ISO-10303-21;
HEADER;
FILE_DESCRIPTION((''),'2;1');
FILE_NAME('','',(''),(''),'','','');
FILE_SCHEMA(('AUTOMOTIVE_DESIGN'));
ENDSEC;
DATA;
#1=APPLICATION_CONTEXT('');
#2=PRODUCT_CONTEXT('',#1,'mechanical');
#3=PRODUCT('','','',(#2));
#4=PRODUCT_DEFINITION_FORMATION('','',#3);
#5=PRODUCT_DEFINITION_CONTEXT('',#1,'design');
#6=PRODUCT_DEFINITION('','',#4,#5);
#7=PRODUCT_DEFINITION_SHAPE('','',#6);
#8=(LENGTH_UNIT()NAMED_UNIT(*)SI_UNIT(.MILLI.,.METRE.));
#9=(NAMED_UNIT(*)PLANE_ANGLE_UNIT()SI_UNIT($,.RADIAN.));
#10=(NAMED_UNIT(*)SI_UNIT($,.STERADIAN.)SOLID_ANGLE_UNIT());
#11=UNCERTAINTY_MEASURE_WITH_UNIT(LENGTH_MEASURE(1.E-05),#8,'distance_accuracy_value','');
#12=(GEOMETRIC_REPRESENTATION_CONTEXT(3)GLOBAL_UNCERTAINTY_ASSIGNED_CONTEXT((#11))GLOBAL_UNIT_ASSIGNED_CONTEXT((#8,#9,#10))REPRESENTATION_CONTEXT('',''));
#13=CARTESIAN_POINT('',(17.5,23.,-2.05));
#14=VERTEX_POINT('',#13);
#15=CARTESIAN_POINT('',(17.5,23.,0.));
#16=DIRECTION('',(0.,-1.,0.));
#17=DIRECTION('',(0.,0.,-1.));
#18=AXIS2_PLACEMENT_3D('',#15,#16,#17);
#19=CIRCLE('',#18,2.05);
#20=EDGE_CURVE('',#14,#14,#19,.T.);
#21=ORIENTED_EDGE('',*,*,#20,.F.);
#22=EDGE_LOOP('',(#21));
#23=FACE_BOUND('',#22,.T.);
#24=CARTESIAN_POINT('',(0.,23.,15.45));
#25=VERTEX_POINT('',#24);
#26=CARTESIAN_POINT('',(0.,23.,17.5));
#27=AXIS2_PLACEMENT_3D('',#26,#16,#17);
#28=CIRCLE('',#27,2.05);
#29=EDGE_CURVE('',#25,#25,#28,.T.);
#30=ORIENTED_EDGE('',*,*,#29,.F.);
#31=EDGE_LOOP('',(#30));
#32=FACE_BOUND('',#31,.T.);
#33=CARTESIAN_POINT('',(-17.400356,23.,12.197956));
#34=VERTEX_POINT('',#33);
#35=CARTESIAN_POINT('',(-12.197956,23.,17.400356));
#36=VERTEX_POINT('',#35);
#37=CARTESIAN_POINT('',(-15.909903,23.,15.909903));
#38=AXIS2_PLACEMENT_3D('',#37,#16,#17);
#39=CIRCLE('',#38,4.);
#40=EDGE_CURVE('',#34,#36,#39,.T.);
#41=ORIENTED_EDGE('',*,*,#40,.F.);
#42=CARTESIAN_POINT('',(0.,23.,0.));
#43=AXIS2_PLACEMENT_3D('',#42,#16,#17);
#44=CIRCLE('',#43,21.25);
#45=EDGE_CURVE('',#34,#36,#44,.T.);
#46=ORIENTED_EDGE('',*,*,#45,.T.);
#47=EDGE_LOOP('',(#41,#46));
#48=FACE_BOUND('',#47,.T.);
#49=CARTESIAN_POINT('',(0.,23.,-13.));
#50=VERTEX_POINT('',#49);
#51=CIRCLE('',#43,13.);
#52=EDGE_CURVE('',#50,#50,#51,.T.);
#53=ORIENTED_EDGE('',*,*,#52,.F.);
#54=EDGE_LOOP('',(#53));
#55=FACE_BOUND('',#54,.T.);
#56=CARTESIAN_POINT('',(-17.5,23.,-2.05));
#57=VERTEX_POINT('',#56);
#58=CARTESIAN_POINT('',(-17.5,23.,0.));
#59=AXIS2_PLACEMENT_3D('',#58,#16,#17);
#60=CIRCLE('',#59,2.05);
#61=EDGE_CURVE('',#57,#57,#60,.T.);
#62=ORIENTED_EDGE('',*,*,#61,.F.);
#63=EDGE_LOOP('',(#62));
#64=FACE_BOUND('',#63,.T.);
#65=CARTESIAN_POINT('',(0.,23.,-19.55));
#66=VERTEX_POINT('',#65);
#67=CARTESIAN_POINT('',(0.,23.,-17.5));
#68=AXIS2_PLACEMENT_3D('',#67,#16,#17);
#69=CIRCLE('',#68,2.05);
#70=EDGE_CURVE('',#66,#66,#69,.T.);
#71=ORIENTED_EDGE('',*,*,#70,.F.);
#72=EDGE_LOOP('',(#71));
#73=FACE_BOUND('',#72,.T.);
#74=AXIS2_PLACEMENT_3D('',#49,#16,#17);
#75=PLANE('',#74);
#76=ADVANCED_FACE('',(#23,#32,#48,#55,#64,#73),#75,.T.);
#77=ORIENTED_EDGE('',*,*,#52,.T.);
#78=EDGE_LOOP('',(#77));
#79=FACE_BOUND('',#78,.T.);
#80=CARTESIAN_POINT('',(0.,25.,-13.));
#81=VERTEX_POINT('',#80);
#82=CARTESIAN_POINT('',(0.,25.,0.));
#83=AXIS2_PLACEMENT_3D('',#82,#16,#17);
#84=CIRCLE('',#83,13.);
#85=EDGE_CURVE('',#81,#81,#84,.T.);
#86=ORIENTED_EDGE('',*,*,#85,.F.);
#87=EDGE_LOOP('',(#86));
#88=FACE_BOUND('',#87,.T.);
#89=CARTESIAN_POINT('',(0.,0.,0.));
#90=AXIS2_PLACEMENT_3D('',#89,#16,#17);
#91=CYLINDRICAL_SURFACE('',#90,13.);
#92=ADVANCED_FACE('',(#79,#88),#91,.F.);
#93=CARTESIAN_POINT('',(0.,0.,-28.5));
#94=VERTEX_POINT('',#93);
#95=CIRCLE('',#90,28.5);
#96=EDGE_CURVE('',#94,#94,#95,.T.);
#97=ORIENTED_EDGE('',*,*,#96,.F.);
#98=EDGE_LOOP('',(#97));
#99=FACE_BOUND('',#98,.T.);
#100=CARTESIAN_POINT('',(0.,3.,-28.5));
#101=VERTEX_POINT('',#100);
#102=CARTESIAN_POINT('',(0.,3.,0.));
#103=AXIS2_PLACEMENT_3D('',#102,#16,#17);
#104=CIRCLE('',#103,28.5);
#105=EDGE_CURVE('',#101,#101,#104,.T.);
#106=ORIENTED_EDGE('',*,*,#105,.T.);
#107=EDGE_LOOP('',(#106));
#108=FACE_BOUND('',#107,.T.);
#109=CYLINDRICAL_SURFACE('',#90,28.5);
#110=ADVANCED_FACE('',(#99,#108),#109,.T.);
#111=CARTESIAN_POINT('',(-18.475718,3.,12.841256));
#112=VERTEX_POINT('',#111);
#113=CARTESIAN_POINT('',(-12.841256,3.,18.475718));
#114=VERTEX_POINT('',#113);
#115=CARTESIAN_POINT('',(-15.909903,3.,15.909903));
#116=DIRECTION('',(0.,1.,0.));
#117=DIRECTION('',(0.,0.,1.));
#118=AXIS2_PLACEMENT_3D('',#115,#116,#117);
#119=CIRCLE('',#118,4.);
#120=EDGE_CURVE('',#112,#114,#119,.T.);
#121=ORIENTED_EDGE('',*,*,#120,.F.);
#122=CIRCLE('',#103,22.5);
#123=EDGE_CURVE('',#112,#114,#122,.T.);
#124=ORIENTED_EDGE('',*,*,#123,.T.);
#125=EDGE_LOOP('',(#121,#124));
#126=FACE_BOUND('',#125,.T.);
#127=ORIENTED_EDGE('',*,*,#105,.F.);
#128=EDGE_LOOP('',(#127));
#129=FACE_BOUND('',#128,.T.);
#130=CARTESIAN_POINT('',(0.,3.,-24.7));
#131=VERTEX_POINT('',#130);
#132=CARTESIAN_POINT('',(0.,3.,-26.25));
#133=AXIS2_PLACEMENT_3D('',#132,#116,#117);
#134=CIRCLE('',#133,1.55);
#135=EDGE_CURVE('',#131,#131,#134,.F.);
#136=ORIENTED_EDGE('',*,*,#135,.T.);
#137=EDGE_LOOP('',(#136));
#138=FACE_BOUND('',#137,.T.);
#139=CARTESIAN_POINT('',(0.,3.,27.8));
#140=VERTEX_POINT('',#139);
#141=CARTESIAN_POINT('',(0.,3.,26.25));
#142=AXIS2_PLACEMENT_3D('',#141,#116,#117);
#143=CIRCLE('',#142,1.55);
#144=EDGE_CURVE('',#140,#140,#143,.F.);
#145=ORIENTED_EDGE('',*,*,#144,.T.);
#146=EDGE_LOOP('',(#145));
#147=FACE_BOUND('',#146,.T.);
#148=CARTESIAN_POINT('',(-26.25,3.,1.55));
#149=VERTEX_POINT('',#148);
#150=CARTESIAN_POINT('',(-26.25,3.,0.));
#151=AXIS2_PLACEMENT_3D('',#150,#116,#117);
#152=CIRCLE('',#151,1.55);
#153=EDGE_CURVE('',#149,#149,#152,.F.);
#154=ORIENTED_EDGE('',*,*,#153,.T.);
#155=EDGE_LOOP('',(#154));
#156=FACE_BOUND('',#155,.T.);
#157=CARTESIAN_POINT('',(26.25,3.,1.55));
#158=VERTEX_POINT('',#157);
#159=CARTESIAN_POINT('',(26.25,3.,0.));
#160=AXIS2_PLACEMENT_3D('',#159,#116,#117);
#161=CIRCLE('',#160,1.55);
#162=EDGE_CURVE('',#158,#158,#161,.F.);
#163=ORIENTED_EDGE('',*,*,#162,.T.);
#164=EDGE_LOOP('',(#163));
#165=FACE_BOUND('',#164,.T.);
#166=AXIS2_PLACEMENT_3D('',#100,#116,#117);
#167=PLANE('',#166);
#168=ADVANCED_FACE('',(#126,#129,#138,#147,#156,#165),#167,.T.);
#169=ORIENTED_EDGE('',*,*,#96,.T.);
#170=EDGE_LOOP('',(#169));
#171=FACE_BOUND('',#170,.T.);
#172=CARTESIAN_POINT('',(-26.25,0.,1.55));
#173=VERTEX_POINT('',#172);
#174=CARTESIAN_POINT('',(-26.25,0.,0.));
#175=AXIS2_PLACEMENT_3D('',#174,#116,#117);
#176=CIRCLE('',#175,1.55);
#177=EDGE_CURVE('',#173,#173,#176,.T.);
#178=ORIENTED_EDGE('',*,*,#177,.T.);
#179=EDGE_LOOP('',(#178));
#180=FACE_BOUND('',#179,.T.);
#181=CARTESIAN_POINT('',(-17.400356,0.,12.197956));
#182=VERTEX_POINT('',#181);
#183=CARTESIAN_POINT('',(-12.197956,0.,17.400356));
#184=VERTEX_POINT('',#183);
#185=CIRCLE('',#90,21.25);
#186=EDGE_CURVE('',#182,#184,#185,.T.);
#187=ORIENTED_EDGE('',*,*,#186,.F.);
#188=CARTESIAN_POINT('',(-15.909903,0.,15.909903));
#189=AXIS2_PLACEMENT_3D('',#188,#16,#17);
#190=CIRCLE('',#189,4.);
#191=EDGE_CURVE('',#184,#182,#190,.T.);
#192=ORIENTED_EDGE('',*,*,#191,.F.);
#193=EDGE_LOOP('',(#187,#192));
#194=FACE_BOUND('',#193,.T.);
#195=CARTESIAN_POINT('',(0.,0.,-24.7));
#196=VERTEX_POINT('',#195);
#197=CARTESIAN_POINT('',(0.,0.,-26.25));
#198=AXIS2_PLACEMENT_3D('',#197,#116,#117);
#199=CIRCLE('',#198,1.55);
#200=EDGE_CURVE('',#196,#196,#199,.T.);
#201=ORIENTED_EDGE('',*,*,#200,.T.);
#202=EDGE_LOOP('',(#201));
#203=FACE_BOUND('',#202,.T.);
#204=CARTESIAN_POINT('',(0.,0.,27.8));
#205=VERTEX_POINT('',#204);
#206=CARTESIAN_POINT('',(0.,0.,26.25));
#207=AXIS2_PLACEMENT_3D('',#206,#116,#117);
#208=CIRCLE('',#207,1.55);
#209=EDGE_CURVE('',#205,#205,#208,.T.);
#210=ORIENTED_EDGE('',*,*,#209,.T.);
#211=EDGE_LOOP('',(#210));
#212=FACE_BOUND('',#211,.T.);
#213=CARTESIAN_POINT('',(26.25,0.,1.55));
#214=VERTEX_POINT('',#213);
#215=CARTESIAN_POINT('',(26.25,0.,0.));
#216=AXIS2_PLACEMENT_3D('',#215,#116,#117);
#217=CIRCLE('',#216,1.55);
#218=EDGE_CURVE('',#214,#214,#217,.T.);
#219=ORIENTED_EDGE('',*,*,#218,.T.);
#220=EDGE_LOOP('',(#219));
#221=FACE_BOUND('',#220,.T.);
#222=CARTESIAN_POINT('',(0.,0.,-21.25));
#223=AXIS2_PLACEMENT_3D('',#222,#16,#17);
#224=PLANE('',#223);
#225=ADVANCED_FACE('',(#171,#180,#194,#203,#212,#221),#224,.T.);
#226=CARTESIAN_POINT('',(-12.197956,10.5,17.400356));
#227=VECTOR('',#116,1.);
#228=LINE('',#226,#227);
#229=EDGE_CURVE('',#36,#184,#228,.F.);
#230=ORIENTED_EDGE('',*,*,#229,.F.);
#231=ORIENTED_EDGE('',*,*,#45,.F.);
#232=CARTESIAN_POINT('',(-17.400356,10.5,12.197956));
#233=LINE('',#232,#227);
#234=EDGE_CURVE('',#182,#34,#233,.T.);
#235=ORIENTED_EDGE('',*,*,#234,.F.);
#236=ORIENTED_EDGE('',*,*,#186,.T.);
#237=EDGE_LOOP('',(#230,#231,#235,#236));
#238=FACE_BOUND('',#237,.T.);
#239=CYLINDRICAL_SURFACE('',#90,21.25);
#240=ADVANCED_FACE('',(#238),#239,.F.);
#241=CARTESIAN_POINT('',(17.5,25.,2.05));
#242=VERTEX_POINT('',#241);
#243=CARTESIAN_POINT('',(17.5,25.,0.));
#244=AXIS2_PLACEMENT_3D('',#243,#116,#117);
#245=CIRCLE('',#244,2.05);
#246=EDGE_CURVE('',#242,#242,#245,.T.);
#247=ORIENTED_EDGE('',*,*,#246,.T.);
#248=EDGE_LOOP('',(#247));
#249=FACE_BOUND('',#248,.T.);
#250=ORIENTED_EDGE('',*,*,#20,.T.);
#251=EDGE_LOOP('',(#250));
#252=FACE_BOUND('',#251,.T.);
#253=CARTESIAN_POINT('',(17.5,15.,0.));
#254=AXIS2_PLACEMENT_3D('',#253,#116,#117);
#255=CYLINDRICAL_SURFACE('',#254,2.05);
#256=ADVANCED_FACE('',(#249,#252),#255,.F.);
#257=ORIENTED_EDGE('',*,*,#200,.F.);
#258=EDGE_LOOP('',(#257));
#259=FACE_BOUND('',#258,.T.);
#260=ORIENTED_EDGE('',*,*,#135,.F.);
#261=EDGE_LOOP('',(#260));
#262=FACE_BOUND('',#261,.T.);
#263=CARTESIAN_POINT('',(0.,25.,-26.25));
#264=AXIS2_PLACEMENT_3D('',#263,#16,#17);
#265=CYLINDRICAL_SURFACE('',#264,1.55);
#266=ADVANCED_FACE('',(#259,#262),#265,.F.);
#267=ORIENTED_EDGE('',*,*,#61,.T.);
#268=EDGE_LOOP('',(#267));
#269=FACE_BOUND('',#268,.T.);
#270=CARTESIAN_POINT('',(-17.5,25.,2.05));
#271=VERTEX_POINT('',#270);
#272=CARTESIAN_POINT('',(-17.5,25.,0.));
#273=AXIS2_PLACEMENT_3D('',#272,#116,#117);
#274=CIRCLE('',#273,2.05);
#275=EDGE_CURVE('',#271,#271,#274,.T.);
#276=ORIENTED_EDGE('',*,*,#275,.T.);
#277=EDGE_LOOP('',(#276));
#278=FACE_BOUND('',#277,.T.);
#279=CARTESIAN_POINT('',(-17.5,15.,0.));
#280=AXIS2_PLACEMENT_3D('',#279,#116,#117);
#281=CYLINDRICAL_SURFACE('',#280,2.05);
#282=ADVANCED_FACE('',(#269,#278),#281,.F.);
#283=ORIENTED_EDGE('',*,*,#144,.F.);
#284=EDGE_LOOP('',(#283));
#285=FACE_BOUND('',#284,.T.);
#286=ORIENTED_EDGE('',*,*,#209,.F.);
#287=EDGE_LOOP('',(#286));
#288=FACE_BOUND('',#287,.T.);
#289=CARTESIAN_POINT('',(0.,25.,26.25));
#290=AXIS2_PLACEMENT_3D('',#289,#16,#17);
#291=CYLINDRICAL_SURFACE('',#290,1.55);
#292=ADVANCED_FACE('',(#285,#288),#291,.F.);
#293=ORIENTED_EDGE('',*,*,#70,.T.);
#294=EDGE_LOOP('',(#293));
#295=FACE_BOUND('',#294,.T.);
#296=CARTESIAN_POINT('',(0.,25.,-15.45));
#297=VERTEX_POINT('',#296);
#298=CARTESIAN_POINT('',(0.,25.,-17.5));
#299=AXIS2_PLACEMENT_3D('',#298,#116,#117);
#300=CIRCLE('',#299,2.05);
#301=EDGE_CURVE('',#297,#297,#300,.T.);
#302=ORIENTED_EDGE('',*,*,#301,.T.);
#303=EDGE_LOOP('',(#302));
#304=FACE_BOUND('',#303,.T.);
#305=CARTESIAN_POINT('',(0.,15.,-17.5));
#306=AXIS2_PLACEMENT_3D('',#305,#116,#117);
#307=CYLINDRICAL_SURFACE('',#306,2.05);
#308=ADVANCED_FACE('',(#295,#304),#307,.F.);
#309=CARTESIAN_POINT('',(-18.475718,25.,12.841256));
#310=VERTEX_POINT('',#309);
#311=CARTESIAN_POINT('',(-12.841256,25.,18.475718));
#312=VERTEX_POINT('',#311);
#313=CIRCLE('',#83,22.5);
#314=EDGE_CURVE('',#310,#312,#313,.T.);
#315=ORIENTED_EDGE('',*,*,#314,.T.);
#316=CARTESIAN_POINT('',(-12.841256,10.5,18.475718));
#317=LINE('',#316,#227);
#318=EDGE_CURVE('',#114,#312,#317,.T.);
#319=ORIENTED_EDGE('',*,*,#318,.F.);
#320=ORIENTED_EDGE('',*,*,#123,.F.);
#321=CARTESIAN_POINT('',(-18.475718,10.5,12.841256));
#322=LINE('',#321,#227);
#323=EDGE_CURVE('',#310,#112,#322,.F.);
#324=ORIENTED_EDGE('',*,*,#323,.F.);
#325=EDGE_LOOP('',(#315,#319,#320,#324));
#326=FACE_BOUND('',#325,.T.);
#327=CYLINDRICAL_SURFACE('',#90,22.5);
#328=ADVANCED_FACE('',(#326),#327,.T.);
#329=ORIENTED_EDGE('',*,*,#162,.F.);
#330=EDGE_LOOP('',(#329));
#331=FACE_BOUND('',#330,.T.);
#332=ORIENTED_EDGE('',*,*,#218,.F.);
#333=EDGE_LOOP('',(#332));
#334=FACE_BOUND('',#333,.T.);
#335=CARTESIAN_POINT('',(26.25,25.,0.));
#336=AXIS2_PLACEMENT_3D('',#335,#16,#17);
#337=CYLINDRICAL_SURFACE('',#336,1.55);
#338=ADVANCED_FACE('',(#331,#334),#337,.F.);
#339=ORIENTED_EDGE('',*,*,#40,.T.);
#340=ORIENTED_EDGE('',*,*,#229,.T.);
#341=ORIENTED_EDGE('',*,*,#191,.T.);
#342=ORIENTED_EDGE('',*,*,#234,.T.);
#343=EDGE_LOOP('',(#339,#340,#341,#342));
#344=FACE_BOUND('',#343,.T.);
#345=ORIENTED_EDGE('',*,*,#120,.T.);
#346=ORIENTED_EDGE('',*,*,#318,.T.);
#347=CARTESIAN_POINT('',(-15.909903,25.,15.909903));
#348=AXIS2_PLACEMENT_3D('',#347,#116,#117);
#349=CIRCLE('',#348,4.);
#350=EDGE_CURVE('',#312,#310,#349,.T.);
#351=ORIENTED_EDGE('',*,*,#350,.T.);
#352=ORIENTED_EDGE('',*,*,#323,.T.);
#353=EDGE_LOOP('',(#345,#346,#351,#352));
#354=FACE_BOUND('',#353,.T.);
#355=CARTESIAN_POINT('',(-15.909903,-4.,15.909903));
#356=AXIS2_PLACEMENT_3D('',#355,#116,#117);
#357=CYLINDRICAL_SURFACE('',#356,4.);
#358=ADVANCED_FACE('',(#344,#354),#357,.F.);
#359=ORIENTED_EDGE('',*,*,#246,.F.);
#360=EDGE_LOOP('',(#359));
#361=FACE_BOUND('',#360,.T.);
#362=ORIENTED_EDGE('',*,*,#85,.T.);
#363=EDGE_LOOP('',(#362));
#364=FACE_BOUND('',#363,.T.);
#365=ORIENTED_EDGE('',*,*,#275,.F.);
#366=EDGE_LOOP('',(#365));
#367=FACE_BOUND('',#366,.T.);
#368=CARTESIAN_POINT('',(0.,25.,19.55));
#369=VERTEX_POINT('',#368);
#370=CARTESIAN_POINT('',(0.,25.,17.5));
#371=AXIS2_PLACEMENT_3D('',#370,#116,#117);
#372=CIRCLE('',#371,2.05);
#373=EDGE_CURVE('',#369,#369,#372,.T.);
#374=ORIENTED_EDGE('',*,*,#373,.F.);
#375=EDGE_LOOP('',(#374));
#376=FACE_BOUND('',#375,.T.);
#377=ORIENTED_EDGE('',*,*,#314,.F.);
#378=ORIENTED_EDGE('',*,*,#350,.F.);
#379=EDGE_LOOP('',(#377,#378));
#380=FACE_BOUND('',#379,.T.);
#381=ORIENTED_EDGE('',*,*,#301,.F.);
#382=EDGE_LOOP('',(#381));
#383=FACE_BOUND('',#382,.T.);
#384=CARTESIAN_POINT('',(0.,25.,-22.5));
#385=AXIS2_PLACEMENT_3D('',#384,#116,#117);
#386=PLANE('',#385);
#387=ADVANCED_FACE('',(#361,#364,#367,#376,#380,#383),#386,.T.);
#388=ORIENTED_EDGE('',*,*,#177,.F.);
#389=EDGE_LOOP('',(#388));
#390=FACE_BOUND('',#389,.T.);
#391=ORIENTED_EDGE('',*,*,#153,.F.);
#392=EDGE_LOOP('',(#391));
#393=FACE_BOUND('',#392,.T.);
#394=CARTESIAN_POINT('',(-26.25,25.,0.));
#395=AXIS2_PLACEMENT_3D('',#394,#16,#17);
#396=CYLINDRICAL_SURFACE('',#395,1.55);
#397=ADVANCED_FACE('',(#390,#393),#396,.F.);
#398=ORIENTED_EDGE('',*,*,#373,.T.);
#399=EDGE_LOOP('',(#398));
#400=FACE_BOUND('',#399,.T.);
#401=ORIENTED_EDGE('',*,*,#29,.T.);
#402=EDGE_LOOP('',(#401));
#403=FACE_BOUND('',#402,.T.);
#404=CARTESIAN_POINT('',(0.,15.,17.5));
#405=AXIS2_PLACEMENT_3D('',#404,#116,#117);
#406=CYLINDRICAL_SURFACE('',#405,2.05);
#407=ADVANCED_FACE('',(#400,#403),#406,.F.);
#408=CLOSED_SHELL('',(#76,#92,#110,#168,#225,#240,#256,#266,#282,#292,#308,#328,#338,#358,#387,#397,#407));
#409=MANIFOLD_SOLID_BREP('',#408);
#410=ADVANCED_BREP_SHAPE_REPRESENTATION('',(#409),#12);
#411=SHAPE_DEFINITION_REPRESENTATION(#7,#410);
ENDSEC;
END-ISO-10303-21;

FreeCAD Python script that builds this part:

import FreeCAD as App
import Part
import Sketcher


def add_polygon(sketch, points):
    """Adds a closed chain of lines whose ends are joined by coincident constraints."""
    first, n = sketch.GeometryCount, len(points)
    for a, b in zip(points, points[1:] + points[:1]):
        sketch.addGeometry(Part.LineSegment(App.Vector(*a, 0), App.Vector(*b, 0)), False)
    for i in range(n):
        sketch.addConstraint(Sketcher.Constraint("Coincident", first + i, 2, first + (i + 1) % n, 1))

doc = App.newDocument("Part")
body = doc.addObject("PartDesign::Body", "Body")

sketch1 = body.newObject("Sketcher::SketchObject", "Sketch")
sketch1.AttachmentSupport = (doc.getObject("YZ_Plane"), [""])
sketch1.MapMode = "FlatFace"
add_polygon(sketch1, [(25, -13), (23, -13), (23, -21.25), (0, -21.25), (0, -28.5), (3, -28.5), (3, -22.5), (25, -22.5)])
sketch1.addConstraint([
    Sketcher.Constraint("Horizontal", 0),
    Sketcher.Constraint("Vertical", 1),
    Sketcher.Constraint("Horizontal", 2),
    Sketcher.Constraint("Vertical", 3),
    Sketcher.Constraint("Horizontal", 4),
    Sketcher.Constraint("Vertical", 5),
    Sketcher.Constraint("Horizontal", 6),
    Sketcher.Constraint("Vertical", 7),
    Sketcher.Constraint("PointOnObject", 2, 2, -2),
    Sketcher.Constraint("DistanceX", 0, 2, 0, 1, 2.0),
    Sketcher.Constraint("DistanceX", 2, 2, 2, 1, 23.0),
    Sketcher.Constraint("DistanceX", 4, 1, 4, 2, 3.0),
    Sketcher.Constraint("DistanceY", 5, 1, 5, 2, 6.0),
    Sketcher.Constraint("DistanceY", 7, 1, 7, 2, 9.5),
    Sketcher.Constraint("DistanceY", 0, 2, -1, 1, 13.0),
    Sketcher.Constraint("DistanceY", 1, 2, 1, 1, 8.25),
])
revolution = body.newObject("PartDesign::Revolution", "Revolution")
revolution.Profile = sketch1
revolution.ReferenceAxis = (sketch1, ["H_Axis"])
revolution.Angle = 360

sketch2 = body.newObject("Sketcher::SketchObject", "Sketch001")
sketch2.AttachmentSupport = (doc.getObject("XZ_Plane"), [""])
sketch2.MapMode = "FlatFace"
sketch2.AttachmentOffset = App.Placement(App.Vector(0, 0, -25), App.Rotation())
sketch2.addGeometry([
    Part.Circle(App.Vector(0, -17.5, 0), App.Vector(0, 0, 1), 2.05),
    Part.Circle(App.Vector(17.5, 0, 0), App.Vector(0, 0, 1), 2.05),
    Part.Circle(App.Vector(0, 17.5, 0), App.Vector(0, 0, 1), 2.05),
    Part.Circle(App.Vector(-17.5, 0, 0), App.Vector(0, 0, 1), 2.05),
], False)
sketch2.addConstraint([
    Sketcher.Constraint("Equal", 0, 1),
    Sketcher.Constraint("Equal", 1, 2),
    Sketcher.Constraint("Equal", 2, 3),
    Sketcher.Constraint("Symmetric", 0, 3, 2, 3, -1, 1),
    Sketcher.Constraint("Symmetric", 1, 3, 3, 3, -1, 1),
    Sketcher.Constraint("PointOnObject", 0, 3, -2),
    Sketcher.Constraint("PointOnObject", 1, 3, -1),
    Sketcher.Constraint("Diameter", 0, 4.1),
    Sketcher.Constraint("DistanceY", 0, 3, 2, 3, 35.0),
    Sketcher.Constraint("DistanceX", 3, 3, 1, 3, 35.0),
])
pocket1 = body.newObject("PartDesign::Pocket", "Pocket")
pocket1.Profile = sketch2
pocket1.Length = 10
pocket1.Reversed = True

sketch3 = body.newObject("Sketcher::SketchObject", "Sketch002")
sketch3.AttachmentSupport = (doc.getObject("XZ_Plane"), [""])
sketch3.MapMode = "FlatFace"
sketch3.addGeometry([
    Part.Circle(App.Vector(0, 26.25, 0), App.Vector(0, 0, 1), 1.55),
    Part.Circle(App.Vector(-26.25, 0, 0), App.Vector(0, 0, 1), 1.55),
    Part.Circle(App.Vector(0, -26.25, 0), App.Vector(0, 0, 1), 1.55),
    Part.Circle(App.Vector(26.25, 0, 0), App.Vector(0, 0, 1), 1.55),
], False)
sketch3.addConstraint([
    Sketcher.Constraint("Equal", 0, 1),
    Sketcher.Constraint("Equal", 1, 2),
    Sketcher.Constraint("Equal", 2, 3),
    Sketcher.Constraint("Symmetric", 0, 3, 2, 3, -1, 1),
    Sketcher.Constraint("Symmetric", 1, 3, 3, 3, -1, 1),
    Sketcher.Constraint("PointOnObject", 0, 3, -2),
    Sketcher.Constraint("PointOnObject", 1, 3, -1),
    Sketcher.Constraint("Diameter", 0, 3.1),
    Sketcher.Constraint("DistanceY", 2, 3, 0, 3, 52.5),
    Sketcher.Constraint("DistanceX", 1, 3, 3, 3, 52.5),
])
pocket2 = body.newObject("PartDesign::Pocket", "Pocket001")
pocket2.Profile = sketch3
pocket2.Type = "ThroughAll"

sketch4 = body.newObject("Sketcher::SketchObject", "Sketch003")
sketch4.AttachmentSupport = (doc.getObject("XZ_Plane"), [""])
sketch4.MapMode = "FlatFace"
sketch4.AttachmentOffset = App.Placement(App.Vector(0, 0, -25), App.Rotation())
sketch4.addGeometry(Part.Circle(App.Vector(-15.909903, 15.909903, 0), App.Vector(0, 0, 1), 4), False)
sketch4.addConstraint([
    Sketcher.Constraint("Diameter", 0, 8.0),
    Sketcher.Constraint("DistanceX", 0, 3, -1, 1, 15.909903),
    Sketcher.Constraint("DistanceY", -1, 1, 0, 3, 15.909903),
])
pocket3 = body.newObject("PartDesign::Pocket", "Pocket002")
pocket3.Profile = sketch4
pocket3.Length = 29
pocket3.Reversed = True

doc.recompute()
